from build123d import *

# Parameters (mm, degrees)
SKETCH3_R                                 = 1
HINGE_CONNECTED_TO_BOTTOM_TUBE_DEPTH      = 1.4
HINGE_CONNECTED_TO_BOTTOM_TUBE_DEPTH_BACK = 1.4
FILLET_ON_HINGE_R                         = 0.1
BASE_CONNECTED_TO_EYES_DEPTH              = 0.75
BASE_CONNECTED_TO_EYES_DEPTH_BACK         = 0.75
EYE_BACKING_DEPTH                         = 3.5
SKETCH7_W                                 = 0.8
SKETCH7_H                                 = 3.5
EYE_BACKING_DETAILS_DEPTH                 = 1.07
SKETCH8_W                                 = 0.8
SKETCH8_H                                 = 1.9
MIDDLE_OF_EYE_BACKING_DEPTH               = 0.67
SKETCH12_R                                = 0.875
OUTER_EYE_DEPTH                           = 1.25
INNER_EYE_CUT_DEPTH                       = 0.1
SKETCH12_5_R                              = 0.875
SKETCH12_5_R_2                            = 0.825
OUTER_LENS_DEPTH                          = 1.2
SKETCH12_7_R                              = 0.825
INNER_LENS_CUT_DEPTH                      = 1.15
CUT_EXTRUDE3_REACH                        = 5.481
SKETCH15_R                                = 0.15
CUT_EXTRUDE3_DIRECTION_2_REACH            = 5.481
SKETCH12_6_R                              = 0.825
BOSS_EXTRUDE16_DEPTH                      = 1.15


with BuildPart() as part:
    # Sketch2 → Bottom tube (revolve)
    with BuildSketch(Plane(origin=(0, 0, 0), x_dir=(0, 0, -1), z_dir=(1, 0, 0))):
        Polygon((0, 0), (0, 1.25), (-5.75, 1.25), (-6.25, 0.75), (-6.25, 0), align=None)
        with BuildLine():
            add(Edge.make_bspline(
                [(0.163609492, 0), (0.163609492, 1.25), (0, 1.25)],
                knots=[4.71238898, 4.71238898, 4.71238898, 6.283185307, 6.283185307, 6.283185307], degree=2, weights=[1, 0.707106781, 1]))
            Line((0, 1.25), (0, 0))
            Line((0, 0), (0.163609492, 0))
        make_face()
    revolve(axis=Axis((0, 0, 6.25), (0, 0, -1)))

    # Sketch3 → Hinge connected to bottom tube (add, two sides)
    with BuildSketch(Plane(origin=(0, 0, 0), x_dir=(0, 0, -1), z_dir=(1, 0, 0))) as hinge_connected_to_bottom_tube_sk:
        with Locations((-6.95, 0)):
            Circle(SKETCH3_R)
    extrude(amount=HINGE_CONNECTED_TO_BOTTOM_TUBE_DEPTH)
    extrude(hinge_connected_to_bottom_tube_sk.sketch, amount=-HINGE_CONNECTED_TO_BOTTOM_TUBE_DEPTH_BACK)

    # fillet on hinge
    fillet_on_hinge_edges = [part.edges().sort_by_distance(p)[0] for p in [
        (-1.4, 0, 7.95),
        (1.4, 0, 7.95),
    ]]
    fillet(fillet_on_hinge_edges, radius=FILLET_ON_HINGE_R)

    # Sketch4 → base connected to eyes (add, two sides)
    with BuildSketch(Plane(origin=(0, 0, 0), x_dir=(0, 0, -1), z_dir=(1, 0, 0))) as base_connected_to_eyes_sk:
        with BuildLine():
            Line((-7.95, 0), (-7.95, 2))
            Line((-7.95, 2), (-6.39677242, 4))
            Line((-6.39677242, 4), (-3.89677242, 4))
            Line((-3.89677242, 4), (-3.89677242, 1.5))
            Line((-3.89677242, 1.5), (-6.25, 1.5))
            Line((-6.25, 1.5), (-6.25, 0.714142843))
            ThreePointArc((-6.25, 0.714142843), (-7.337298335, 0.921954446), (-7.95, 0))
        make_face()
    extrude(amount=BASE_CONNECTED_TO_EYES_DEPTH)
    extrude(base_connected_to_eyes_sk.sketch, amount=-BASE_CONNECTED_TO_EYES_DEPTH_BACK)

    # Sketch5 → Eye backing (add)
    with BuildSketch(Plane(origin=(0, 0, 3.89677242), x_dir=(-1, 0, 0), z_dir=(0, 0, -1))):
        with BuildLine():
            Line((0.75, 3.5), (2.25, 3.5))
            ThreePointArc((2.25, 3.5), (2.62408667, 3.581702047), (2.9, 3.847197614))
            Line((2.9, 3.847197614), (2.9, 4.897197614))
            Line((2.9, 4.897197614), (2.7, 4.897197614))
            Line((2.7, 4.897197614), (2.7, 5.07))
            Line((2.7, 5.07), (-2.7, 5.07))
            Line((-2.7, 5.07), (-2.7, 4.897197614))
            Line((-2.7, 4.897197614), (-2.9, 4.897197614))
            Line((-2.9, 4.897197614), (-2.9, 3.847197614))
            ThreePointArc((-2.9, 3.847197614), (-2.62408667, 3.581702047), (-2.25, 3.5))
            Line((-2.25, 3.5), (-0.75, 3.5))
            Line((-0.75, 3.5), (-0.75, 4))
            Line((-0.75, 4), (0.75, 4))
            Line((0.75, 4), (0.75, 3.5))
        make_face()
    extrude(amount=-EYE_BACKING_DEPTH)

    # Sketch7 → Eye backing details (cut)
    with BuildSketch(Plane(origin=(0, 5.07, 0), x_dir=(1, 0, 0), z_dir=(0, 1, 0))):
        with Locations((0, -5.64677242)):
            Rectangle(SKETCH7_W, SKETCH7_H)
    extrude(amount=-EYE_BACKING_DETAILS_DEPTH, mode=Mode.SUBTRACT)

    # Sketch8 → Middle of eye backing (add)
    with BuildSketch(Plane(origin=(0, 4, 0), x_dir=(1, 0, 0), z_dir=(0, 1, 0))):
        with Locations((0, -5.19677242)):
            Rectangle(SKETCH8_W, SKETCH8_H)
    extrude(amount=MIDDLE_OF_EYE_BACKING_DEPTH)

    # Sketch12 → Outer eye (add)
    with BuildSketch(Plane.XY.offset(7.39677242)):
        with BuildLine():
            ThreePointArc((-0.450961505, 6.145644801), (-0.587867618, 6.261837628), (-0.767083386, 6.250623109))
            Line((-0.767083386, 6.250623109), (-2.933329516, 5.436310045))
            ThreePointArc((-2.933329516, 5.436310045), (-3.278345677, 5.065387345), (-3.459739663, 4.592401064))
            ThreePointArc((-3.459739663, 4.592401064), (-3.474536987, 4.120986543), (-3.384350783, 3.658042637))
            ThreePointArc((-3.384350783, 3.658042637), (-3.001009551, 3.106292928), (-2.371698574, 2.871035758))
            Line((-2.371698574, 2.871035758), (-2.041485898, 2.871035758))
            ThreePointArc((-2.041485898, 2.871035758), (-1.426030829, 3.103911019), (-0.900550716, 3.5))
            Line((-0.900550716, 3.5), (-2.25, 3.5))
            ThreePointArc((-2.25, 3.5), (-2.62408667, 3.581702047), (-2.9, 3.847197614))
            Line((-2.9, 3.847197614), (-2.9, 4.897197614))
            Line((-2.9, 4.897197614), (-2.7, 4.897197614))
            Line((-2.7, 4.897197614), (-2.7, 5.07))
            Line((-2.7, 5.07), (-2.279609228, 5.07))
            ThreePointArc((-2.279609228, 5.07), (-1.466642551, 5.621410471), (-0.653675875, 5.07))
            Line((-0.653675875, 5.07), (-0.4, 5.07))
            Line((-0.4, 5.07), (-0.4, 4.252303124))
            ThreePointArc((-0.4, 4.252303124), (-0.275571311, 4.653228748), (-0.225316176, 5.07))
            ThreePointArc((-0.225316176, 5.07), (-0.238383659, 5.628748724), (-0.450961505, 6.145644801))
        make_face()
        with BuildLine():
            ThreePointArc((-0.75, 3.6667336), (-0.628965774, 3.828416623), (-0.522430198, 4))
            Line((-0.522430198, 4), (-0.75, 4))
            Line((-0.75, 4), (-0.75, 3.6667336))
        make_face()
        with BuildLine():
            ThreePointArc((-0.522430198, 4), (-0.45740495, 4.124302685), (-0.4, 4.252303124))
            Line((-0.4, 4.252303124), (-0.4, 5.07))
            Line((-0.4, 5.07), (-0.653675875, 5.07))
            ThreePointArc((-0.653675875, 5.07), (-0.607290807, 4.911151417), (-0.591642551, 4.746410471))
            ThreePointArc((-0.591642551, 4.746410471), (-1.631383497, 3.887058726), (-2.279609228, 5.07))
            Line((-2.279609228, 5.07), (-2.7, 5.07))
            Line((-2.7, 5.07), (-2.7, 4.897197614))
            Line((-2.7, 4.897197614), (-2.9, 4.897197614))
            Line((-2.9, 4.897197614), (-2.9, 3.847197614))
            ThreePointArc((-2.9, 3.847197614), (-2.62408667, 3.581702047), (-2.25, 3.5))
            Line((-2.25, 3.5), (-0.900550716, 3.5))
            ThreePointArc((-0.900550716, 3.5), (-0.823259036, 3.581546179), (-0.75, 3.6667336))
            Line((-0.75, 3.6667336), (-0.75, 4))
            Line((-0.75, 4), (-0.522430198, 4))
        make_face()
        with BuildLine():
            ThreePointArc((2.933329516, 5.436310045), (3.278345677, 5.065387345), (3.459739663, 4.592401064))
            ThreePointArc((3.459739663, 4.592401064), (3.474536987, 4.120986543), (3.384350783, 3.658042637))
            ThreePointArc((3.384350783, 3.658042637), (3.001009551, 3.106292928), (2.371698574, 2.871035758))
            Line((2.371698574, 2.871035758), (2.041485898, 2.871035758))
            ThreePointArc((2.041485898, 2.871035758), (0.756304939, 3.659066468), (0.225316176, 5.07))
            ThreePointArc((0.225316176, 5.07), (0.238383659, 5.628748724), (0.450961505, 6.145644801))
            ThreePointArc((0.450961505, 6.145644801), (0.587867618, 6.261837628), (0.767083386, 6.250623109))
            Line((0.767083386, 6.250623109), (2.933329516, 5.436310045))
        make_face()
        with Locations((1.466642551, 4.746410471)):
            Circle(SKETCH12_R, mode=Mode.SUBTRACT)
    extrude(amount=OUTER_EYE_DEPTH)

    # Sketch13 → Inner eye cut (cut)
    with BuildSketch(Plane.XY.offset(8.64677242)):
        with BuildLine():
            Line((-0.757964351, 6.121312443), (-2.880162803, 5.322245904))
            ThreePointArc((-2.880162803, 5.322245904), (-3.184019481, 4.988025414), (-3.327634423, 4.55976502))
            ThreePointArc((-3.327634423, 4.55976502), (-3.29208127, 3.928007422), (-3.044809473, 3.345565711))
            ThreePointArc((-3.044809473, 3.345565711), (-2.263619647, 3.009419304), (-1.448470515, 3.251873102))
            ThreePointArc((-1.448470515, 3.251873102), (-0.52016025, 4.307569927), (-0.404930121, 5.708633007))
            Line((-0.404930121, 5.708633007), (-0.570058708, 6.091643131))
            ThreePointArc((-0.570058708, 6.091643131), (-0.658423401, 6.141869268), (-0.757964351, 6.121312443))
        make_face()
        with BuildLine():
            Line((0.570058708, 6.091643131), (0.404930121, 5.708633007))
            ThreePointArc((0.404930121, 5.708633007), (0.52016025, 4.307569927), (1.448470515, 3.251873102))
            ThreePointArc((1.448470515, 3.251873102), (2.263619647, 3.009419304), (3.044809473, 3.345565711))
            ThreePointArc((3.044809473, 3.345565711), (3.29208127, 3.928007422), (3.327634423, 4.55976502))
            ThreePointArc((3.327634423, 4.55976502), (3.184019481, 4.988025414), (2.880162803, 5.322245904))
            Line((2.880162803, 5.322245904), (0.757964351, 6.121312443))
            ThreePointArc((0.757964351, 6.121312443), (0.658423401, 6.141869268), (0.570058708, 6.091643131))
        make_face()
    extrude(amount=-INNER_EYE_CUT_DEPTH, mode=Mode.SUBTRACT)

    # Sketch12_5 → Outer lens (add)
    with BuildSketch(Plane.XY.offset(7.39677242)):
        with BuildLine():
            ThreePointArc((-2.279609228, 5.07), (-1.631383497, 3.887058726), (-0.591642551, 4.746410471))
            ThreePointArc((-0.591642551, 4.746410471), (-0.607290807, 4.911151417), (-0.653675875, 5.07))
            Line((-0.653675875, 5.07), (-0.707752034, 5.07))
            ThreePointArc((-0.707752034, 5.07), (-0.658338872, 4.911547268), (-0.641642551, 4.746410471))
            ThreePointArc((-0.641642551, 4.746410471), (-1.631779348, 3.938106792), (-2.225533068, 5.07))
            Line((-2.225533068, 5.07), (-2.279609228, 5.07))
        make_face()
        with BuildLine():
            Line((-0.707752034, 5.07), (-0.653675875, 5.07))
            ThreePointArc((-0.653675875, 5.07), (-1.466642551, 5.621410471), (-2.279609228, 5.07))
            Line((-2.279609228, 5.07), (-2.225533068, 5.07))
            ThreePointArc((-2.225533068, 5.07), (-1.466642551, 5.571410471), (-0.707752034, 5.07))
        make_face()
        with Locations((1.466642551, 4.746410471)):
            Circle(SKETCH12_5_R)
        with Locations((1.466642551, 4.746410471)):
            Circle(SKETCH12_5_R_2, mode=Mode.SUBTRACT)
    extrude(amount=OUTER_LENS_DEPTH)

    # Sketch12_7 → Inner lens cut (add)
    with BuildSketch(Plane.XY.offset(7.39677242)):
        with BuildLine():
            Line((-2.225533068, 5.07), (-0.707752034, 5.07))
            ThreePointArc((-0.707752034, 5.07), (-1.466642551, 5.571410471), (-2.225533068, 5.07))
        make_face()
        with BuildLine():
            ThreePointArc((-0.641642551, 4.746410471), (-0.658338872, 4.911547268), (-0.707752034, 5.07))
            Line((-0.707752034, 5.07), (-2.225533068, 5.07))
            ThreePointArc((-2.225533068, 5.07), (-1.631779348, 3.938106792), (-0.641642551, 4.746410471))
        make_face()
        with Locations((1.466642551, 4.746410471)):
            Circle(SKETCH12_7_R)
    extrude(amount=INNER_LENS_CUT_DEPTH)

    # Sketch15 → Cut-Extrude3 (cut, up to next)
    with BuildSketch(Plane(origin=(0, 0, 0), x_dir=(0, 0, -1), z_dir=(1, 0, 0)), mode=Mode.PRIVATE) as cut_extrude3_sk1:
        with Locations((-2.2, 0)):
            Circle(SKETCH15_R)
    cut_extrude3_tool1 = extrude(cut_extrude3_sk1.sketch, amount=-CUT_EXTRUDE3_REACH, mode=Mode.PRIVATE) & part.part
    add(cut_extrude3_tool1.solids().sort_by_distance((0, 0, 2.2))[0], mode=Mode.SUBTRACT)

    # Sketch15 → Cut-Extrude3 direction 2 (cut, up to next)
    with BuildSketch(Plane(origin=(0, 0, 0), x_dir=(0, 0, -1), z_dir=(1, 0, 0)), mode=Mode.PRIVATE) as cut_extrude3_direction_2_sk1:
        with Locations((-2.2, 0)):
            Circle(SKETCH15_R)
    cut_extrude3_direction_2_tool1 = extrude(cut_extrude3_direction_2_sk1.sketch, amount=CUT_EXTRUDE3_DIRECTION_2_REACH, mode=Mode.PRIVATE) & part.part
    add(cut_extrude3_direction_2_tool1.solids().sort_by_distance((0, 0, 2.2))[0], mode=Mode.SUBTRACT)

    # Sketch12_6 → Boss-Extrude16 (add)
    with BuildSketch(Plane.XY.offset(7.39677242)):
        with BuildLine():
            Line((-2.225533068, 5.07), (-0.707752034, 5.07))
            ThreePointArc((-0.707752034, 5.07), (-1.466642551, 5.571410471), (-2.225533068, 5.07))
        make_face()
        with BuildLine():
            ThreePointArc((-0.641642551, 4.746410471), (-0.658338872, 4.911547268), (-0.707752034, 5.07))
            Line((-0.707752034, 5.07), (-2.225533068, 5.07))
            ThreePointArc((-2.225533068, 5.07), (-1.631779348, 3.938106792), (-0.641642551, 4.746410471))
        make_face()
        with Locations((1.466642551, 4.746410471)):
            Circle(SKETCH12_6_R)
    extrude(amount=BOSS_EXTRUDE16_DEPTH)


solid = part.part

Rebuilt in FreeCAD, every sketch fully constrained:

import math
import FreeCAD as App
import Part
import Sketcher
from FreeCAD import Vector


def edges_at(feature, points):
    """Names of the edges that pass closest to the given points."""
    edges = feature.Shape.Edges
    near = lambda p: min(range(len(edges)), key=lambda i: edges[i].distToShape(Part.Vertex(*p))[0])
    return sorted({f"Edge{near(p) + 1}" for p in points})


def add_polygon(sketch, points):
    """Adds a closed chain of lines whose ends are joined by coincident constraints."""
    first, n = sketch.GeometryCount, len(points)
    for a, b in zip(points, points[1:] + points[:1]):
        sketch.addGeometry(Part.LineSegment(App.Vector(*a, 0), App.Vector(*b, 0)), False)
    for i in range(n):
        sketch.addConstraint(Sketcher.Constraint("Coincident", first + i, 2, first + (i + 1) % n, 1))

doc = App.newDocument("Part")
body = doc.addObject("PartDesign::Body", "Body")

# Sketch on YZ plane
sketch1 = doc.addObject("Sketcher::SketchObject", "Sketch")
body.addObject(sketch1)
sketch1.AttachmentSupport = (doc.YZ_Plane, [""])
sketch1.MapMode = "FlatFace"
sketch1.addGeometry([
    Part.LineSegment(Vector(1.25, 0, 0), Vector(1.25, 5.75, 0)),  # 0
    Part.LineSegment(Vector(1.25, 5.75, 0), Vector(0.75, 6.25, 0)),  # 1
    Part.LineSegment(Vector(0.75, 6.25, 0), Vector(0, 6.25, 0)),  # 2
    Part.LineSegment(Vector(0, 6.25, 0), Vector(0, -0.163609, 0)),  # 3
    Part.BSplineCurve([Vector(0, -0.163609, 0), Vector(1.25, -0.163609, 0), Vector(1.25, 0, 0)], [3, 3], [4.71238898, 6.283185307], False, 2, [1, 0.707106781, 1], False),  # 4
], False)
sketch1.addConstraint([
    Sketcher.Constraint("Block", 4),
    Sketcher.Constraint("Coincident", 0, 2, 1, 1),
    Sketcher.Constraint("Coincident", 1, 2, 2, 1),
    Sketcher.Constraint("Coincident", 2, 2, 3, 1),
    Sketcher.Constraint("Coincident", 3, 2, 4, 1),
    Sketcher.Constraint("Coincident", 4, 2, 0, 1),
    Sketcher.Constraint("Vertical", 0),
    Sketcher.Constraint("Horizontal", 2),
    Sketcher.Constraint("Vertical", 3),
    Sketcher.Constraint("DistanceX", 2, 2, 2, 1, 0.75),
    Sketcher.Constraint("DistanceY", 0, 1, 0, 2, 5.75),
    Sketcher.Constraint("DistanceY", 0, 2, 1, 2, 0.5),
])
revolution = doc.addObject("PartDesign::Revolution", "Revolution")
body.addObject(revolution)
revolution.Profile = sketch1
revolution.ReferenceAxis = (sketch1, ["V_Axis"])
revolution.Angle = 360

# Sketch on YZ plane
sketch2 = doc.addObject("Sketcher::SketchObject", "Sketch001")
body.addObject(sketch2)
sketch2.AttachmentSupport = (doc.YZ_Plane, [""])
sketch2.MapMode = "FlatFace"
sketch2.addGeometry(Part.Circle(Vector(0, 6.95, 0), Vector(0, 0, 1), 1), False)
sketch2.addConstraint([
    Sketcher.Constraint("PointOnObject", 0, 3, -2),
    Sketcher.Constraint("Diameter", 0, 2.0),
    Sketcher.Constraint("DistanceY", -1, 1, 0, 3, 6.95),
])
pad1 = doc.addObject("PartDesign::Pad", "Pad")
body.addObject(pad1)
pad1.Profile = sketch2
pad1.Type = "TwoLengths"
pad1.Length = 1.4
pad1.Length2 = 1.4
doc.recompute()

fillet = doc.addObject("PartDesign::Fillet", "Fillet")
body.addObject(fillet)
fillet.Base = (pad1, edges_at(pad1, [(-1.4, 0, 7.95), (1.4, 0, 7.95)]))
fillet.Radius = 0.1

# Sketch on YZ plane
sketch3 = doc.addObject("Sketcher::SketchObject", "Sketch002")
body.addObject(sketch3)
sketch3.AttachmentSupport = (doc.YZ_Plane, [""])
sketch3.MapMode = "FlatFace"
sketch3.addGeometry([
    Part.LineSegment(Vector(2, 7.95, 0), Vector(0, 7.95, 0)),  # 0
    Part.ArcOfCircle(Part.Circle(Vector(0, 6.95, 0), Vector(0, 0, 1), 1), math.radians(-44.427004), math.radians(90)),  # 1
    Part.LineSegment(Vector(0.714143, 6.25, 0), Vector(1.5, 6.25, 0)),  # 2
    Part.LineSegment(Vector(1.5, 6.25, 0), Vector(1.5, 3.896772, 0)),  # 3
    Part.LineSegment(Vector(1.5, 3.896772, 0), Vector(4, 3.896772, 0)),  # 4
    Part.LineSegment(Vector(4, 3.896772, 0), Vector(4, 6.396772, 0)),  # 5
    Part.LineSegment(Vector(4, 6.396772, 0), Vector(2, 7.95, 0)),  # 6
], False)
sketch3.addConstraint([
    Sketcher.Constraint("Tangent", 0, 2, 1, 2),
    Sketcher.Constraint("Coincident", 1, 1, 2, 1),
    Sketcher.Constraint("Coincident", 2, 2, 3, 1),
    Sketcher.Constraint("Coincident", 3, 2, 4, 1),
    Sketcher.Constraint("Coincident", 4, 2, 5, 1),
    Sketcher.Constraint("Coincident", 5, 2, 6, 1),
    Sketcher.Constraint("Coincident", 6, 2, 0, 1),
    Sketcher.Constraint("Horizontal", 0),
    Sketcher.Constraint("Horizontal", 2),
    Sketcher.Constraint("Vertical", 3),
    Sketcher.Constraint("Horizontal", 4),
    Sketcher.Constraint("Vertical", 5),
    Sketcher.Constraint("PointOnObject", 1, 3, -2),
    Sketcher.Constraint("Equal", 4, 5),
    Sketcher.Constraint("Radius", 1, 1.0),
    Sketcher.Constraint("DistanceX", 0, 2, 0, 1, 2.0),
    Sketcher.Constraint("DistanceX", 4, 1, 4, 2, 2.5),
    Sketcher.Constraint("DistanceX", -1, 1, 4, 2, 4.0),
    Sketcher.Constraint("DistanceY", 1, 1, 1, 3, 0.7),
    Sketcher.Constraint("DistanceY", -1, 1, 1, 3, 6.95),
    Sketcher.Constraint("DistanceY", 3, 2, 3, 1, 2.353228),
])
pad2 = doc.addObject("PartDesign::Pad", "Pad001")
body.addObject(pad2)
pad2.Profile = sketch3
pad2.Type = "TwoLengths"
pad2.Length = 0.75
pad2.Length2 = 0.75

# Sketch on XY plane
sketch4 = doc.addObject("Sketcher::SketchObject", "Sketch003")
body.addObject(sketch4)
sketch4.AttachmentSupport = (doc.XY_Plane, [""])
sketch4.MapMode = "FlatFace"
sketch4.AttachmentOffset = App.Placement(Vector(0, 0, 3.896772), App.Rotation())
sketch4.addGeometry([
    Part.LineSegment(Vector(-0.75, 3.5, 0), Vector(-2.25, 3.5, 0)),  # 0
    Part.ArcOfCircle(Part.Circle(Vector(-2.292571, 4.202344, 0), Vector(0, 0, 1), 0.703633), math.radians(-149.686395), math.radians(-86.531428)),  # 1
    Part.LineSegment(Vector(-2.9, 3.847198, 0), Vector(-2.9, 4.897198, 0)),  # 2
    Part.LineSegment(Vector(-2.9, 4.897198, 0), Vector(-2.7, 4.897198, 0)),  # 3
    Part.LineSegment(Vector(-2.7, 4.897198, 0), Vector(-2.7, 5.07, 0)),  # 4
    Part.LineSegment(Vector(-2.7, 5.07, 0), Vector(2.7, 5.07, 0)),  # 5
    Part.LineSegment(Vector(2.7, 5.07, 0), Vector(2.7, 4.897198, 0)),  # 6
    Part.LineSegment(Vector(2.7, 4.897198, 0), Vector(2.9, 4.897198, 0)),  # 7
    Part.LineSegment(Vector(2.9, 4.897198, 0), Vector(2.9, 3.847198, 0)),  # 8
    Part.ArcOfCircle(Part.Circle(Vector(2.292571, 4.202344, 0), Vector(0, 0, 1), 0.703633), math.radians(-93.468572), math.radians(-30.313605)),  # 9
    Part.LineSegment(Vector(2.25, 3.5, 0), Vector(0.75, 3.5, 0)),  # 10
    Part.LineSegment(Vector(0.75, 3.5, 0), Vector(0.75, 4, 0)),  # 11
    Part.LineSegment(Vector(0.75, 4, 0), Vector(-0.75, 4, 0)),  # 12
    Part.LineSegment(Vector(-0.75, 4, 0), Vector(-0.75, 3.5, 0)),  # 13
], False)
sketch4.addConstraint([
    Sketcher.Constraint("Coincident", 0, 2, 1, 2),
    Sketcher.Constraint("Coincident", 1, 1, 2, 1),
    Sketcher.Constraint("Coincident", 2, 2, 3, 1),
    Sketcher.Constraint("Coincident", 3, 2, 4, 1),
    Sketcher.Constraint("Coincident", 4, 2, 5, 1),
    Sketcher.Constraint("Coincident", 5, 2, 6, 1),
    Sketcher.Constraint("Coincident", 6, 2, 7, 1),
    Sketcher.Constraint("Coincident", 7, 2, 8, 1),
    Sketcher.Constraint("Coincident", 8, 2, 9, 2),
    Sketcher.Constraint("Coincident", 9, 1, 10, 1),
    Sketcher.Constraint("Coincident", 10, 2, 11, 1),
    Sketcher.Constraint("Coincident", 11, 2, 12, 1),
    Sketcher.Constraint("Coincident", 12, 2, 13, 1),
    Sketcher.Constraint("Coincident", 13, 2, 0, 1),
    Sketcher.Constraint("Horizontal", 0),
    Sketcher.Constraint("Vertical", 2),
    Sketcher.Constraint("Horizontal", 3),
    Sketcher.Constraint("Vertical", 4),
    Sketcher.Constraint("Horizontal", 5),
    Sketcher.Constraint("Vertical", 6),
    Sketcher.Constraint("Horizontal", 7),
    Sketcher.Constraint("Vertical", 8),
    Sketcher.Constraint("Horizontal", 10),
    Sketcher.Constraint("Vertical", 11),
    Sketcher.Constraint("Horizontal", 12),
    Sketcher.Constraint("Vertical", 13),
    Sketcher.Constraint("Equal", 1, 9),
    Sketcher.Constraint("Symmetric", 1, 3, 9, 3, -2),
    Sketcher.Constraint("Symmetric", 3, 2, 6, 2, -2),
    Sketcher.Constraint("Symmetric", 10, 2, 13, 2, -2),
    Sketcher.Constraint("Horizontal", 1, 1, 8, 2),
    Sketcher.Constraint("Equal", 10, 12),
    Sketcher.Constraint("DistanceX", 0, 2, 0, 1, 1.5),
    Sketcher.Constraint("DistanceX", 3, 1, 3, 2, 0.2),
    Sketcher.Constraint("DistanceX", 5, 1, 5, 2, 5.4),
    Sketcher.Constraint("DistanceY", 11, 1, 11, 2, 0.5),
    Sketcher.Constraint("DistanceY", -1, 1, 11, 2, 4.0),
    Sketcher.Constraint("DistanceY", 2, 1, 2, 2, 1.05),
    Sketcher.Constraint("DistanceY", -1, 1, 4, 2, 5.07),
    Sketcher.Constraint("Radius", 1, 0.703633),
    Sketcher.Constraint("DistanceY", 4, 1, 4, 2, 0.172802),
])
pad3 = doc.addObject("PartDesign::Pad", "Pad002")
body.addObject(pad3)
pad3.Profile = sketch4
pad3.Length = 3.5

# Sketch on XZ plane
sketch5 = doc.addObject("Sketcher::SketchObject", "Sketch004")
body.addObject(sketch5)
sketch5.AttachmentSupport = (doc.XZ_Plane, [""])
sketch5.MapMode = "FlatFace"
sketch5.AttachmentOffset = App.Placement(Vector(0, 0, -5.07), App.Rotation())
add_polygon(sketch5, [(-0.4, 3.896772), (-0.4, 7.396772), (0.4, 7.396772), (0.4, 3.896772)])  # lines 0-3
sketch5.addConstraint([
    Sketcher.Constraint("Vertical", 0),
    Sketcher.Constraint("Horizontal", 1),
    Sketcher.Constraint("Vertical", 2),
    Sketcher.Constraint("Horizontal", 3),
    Sketcher.Constraint("DistanceX", 1, 1, 1, 2, 0.8),
    Sketcher.Constraint("DistanceY", 0, 1, 0, 2, 3.5),
    Sketcher.Constraint("DistanceX", 0, 2, -1, 1, 0.4),
    Sketcher.Constraint("DistanceY", -1, 1, 0, 2, 7.396772),
])
pocket1 = doc.addObject("PartDesign::Pocket", "Pocket")
body.addObject(pocket1)
pocket1.Profile = sketch5
pocket1.Length = 1.07
pocket1.Reversed = True

# Sketch on XZ plane
sketch6 = doc.addObject("Sketcher::SketchObject", "Sketch005")
body.addObject(sketch6)
sketch6.AttachmentSupport = (doc.XZ_Plane, [""])
sketch6.MapMode = "FlatFace"
sketch6.AttachmentOffset = App.Placement(Vector(0, 0, -4), App.Rotation())
add_polygon(sketch6, [(-0.4, 4.246772), (-0.4, 6.146772), (0.4, 6.146772), (0.4, 4.246772)])  # lines 0-3
sketch6.addConstraint([
    Sketcher.Constraint("Vertical", 0),
    Sketcher.Constraint("Horizontal", 1),
    Sketcher.Constraint("Vertical", 2),
    Sketcher.Constraint("Horizontal", 3),
    Sketcher.Constraint("DistanceX", 1, 1, 1, 2, 0.8),
    Sketcher.Constraint("DistanceY", 0, 1, 0, 2, 1.9),
    Sketcher.Constraint("DistanceX", 0, 2, -1, 1, 0.4),
    Sketcher.Constraint("DistanceY", -1, 1, 0, 2, 6.146772),
])
pad4 = doc.addObject("PartDesign::Pad", "Pad003")
body.addObject(pad4)
pad4.Profile = sketch6
pad4.Length = 0.67
pad4.Reversed = True

# Sketch on XY plane
sketch7 = doc.addObject("Sketcher::SketchObject", "Sketch006")
body.addObject(sketch7)
sketch7.AttachmentSupport = (doc.XY_Plane, [""])
sketch7.MapMode = "FlatFace"
sketch7.AttachmentOffset = App.Placement(Vector(0, 0, 7.396772), App.Rotation())
sketch7.addGeometry([
    Part.ArcOfCircle(Part.Circle(Vector(-0.663563, 6.033896, 0), Vector(0, 0, 1), 0.240181), math.radians(27.727556), math.radians(115.531674)),  # 0
    Part.LineSegment(Vector(-0.767083, 6.250623, 0), Vector(-2.93333, 5.43631, 0)),  # 1
    Part.ArcOfCircle(Part.Circle(Vector(-2.149289, 4.361109, 0), Vector(0, 0, 1), 1.330705), math.radians(126.099658), math.radians(169.990495)),  # 2
    Part.ArcOfCircle(Part.Circle(Vector(-1.369332, 4.290845, 0), Vector(0, 0, 1), 2.112046), math.radians(171.791316), math.radians(197.434539)),  # 3
    Part.ArcOfCircle(Part.Circle(Vector(-2.309989, 3.995439, 0), Vector(0, 0, 1), 1.126095), math.radians(-162.565461), math.radians(-93.141378)),  # 4
    Part.LineSegment(Vector(-2.371699, 2.871036, 0), Vector(-2.041486, 2.871036, 0)),  # 5
    Part.ArcOfCircle(Part.Circle(Vector(-2.547708, 5.138623, 0), Vector(0, 0, 1), 2.323406), math.radians(-77.415487), math.radians(-44.851184)),  # 6
    Part.ArcOfCircle(Part.Circle(Vector(-2.547708, 5.138623, 0), Vector(0, 0, 1), 2.323406), math.radians(-44.851184), math.radians(-39.309207)),  # 7
    Part.ArcOfCircle(Part.Circle(Vector(-2.547708, 5.138623, 0), Vector(0, 0, 1), 2.323406), math.radians(-39.309208), math.radians(-29.344951)),  # 8
    Part.ArcOfCircle(Part.Circle(Vector(-2.547708, 5.138623, 0), Vector(0, 0, 1), 2.323406), math.radians(-29.344951), math.radians(-22.425049)),  # 9
    Part.ArcOfCircle(Part.Circle(Vector(-2.547708, 5.138623, 0), Vector(0, 0, 1), 2.323406), math.radians(-22.425049), math.radians(-1.692513)),  # 10
    Part.ArcOfCircle(Part.Circle(Vector(-1.738075, 5.314148, 0), Vector(0, 0, 1), 1.532334), math.radians(-9.168061), math.radians(32.863122)),  # 11
    Part.ArcOfCircle(Part.Circle(Vector(-1.466643, 4.74641, 0), Vector(0, 0, 1), 0.875), math.radians(21.704307), math.radians(158.295693)),  # 12
    Part.ArcOfCircle(Part.Circle(Vector(-1.466643, 4.74641, 0), Vector(0, 0, 1), 0.875), math.radians(0), math.radians(21.704307)),  # 13
    Part.ArcOfCircle(Part.Circle(Vector(-1.466643, 4.74641, 0), Vector(0, 0, 1), 0.875), math.radians(158.295693), math.radians(360)),  # 14
    Part.ArcOfCircle(Part.Circle(Vector(2.149289, 4.361109, 0), Vector(0, 0, 1), 1.330705), math.radians(10.009505), math.radians(53.900342)),  # 15
    Part.LineSegment(Vector(2.93333, 5.43631, 0), Vector(0.767083, 6.250623, 0)),  # 16
    Part.ArcOfCircle(Part.Circle(Vector(0.663563, 6.033896, 0), Vector(0, 0, 1), 0.240181), math.radians(64.468326), math.radians(152.272444)),  # 17
    Part.ArcOfCircle(Part.Circle(Vector(1.738075, 5.314148, 0), Vector(0, 0, 1), 1.532334), math.radians(147.136878), math.radians(189.168061)),  # 18
    Part.ArcOfCircle(Part.Circle(Vector(2.547708, 5.138623, 0), Vector(0, 0, 1), 2.323406), math.radians(-178.307487), math.radians(-102.584513)),  # 19
    Part.LineSegment(Vector(2.041486, 2.871036, 0), Vector(2.371699, 2.871036, 0)),  # 20
    Part.ArcOfCircle(Part.Circle(Vector(2.309989, 3.995439, 0), Vector(0, 0, 1), 1.126095), math.radians(-86.858622), math.radians(-17.434539)),  # 21
    Part.ArcOfCircle(Part.Circle(Vector(1.369332, 4.290845, 0), Vector(0, 0, 1), 2.112046), math.radians(-17.434539), math.radians(8.208684)),  # 22
    Part.Circle(Vector(1.466643, 4.74641, 0), Vector(0, 0, 1), 0.875),  # 23
], False)
sketch7.addConstraint([
    Sketcher.Constraint("Coincident", 0, 2, 1, 1),
    Sketcher.Constraint("Coincident", 1, 2, 2, 1),
    Sketcher.Constraint("Coincident", 2, 2, 3, 1),
    Sketcher.Constraint("Tangent", 3, 2, 4, 1),
    Sketcher.Constraint("Coincident", 4, 2, 5, 1),
    Sketcher.Constraint("Coincident", 5, 2, 6, 1),
    Sketcher.Constraint("Tangent", 6, 2, 7, 1),
    Sketcher.Constraint("Tangent", 7, 2, 8, 1),
    Sketcher.Constraint("Tangent", 8, 2, 9, 1),
    Sketcher.Constraint("Tangent", 9, 2, 10, 1),
    Sketcher.Constraint("Coincident", 10, 2, 11, 1),
    Sketcher.Constraint("Coincident", 11, 2, 0, 1),
    Sketcher.Constraint("Tangent", 12, 1, 13, 2),
    Sketcher.Constraint("Tangent", 13, 1, 14, 2),
    Sketcher.Constraint("Tangent", 14, 1, 12, 2),
    Sketcher.Constraint("Coincident", 15, 2, 16, 1),
    Sketcher.Constraint("Coincident", 16, 2, 17, 1),
    Sketcher.Constraint("Coincident", 17, 2, 18, 1),
    Sketcher.Constraint("Coincident", 18, 2, 19, 1),
    Sketcher.Constraint("Coincident", 19, 2, 20, 1),
    Sketcher.Constraint("Coincident", 20, 2, 21, 1),
    Sketcher.Constraint("Tangent", 21, 2, 22, 1),
    Sketcher.Constraint("Coincident", 22, 2, 15, 1),
    Sketcher.Constraint("Horizontal", 5),
    Sketcher.Constraint("Horizontal", 20),
    Sketcher.Constraint("Coincident", 8, 3, 6, 3),
    Sketcher.Constraint("Coincident", 10, 3, 6, 3),
    Sketcher.Constraint("Equal", 2, 15),
    Sketcher.Constraint("Equal", 0, 17),
    Sketcher.Constraint("Equal", 11, 18),
    Sketcher.Constraint("Equal", 10, 19),
    Sketcher.Constraint("Equal", 4, 21),
    Sketcher.Constraint("Equal", 3, 22),
    Sketcher.Constraint("Equal", 14, 23),
    Sketcher.Constraint("Symmetric", 2, 3, 15, 3, -2),
    Sketcher.Constraint("Symmetric", 0, 3, 17, 3, -2),
    Sketcher.Constraint("Symmetric", 11, 3, 18, 3, -2),
    Sketcher.Constraint("Symmetric", 6, 3, 19, 3, -2),
    Sketcher.Constraint("Symmetric", 4, 3, 21, 3, -2),
    Sketcher.Constraint("Symmetric", 12, 3, 23, 3, -2),
    Sketcher.Constraint("Horizontal", 3, 3, 22, 3),
    Sketcher.Constraint("Horizontal", 10, 2, 12, 1),
    Sketcher.Constraint("Horizontal", 23, 3, 13, 1),
    Sketcher.Constraint("Horizontal", 12, 1, 14, 1),
    Sketcher.Constraint("Horizontal", 1, 2, 15, 2),
    Sketcher.Constraint("Horizontal", 0, 2, 16, 2),
    Sketcher.Constraint("Horizontal", 5, 2, 19, 2),
    Sketcher.Constraint("Diameter", 23, 1.75),
    Sketcher.Constraint("DistanceY", -1, 1, 8, 2, 4.0),
    Sketcher.Constraint("DistanceY", -1, 1, 6, 2, 3.5),
    Sketcher.Constraint("DistanceX", 9, 2, -1, 1, 0.4),
    Sketcher.Constraint("DistanceX", 7, 2, -1, 1, 0.75),
    Sketcher.Constraint("DistanceY", -1, 1, 10, 2, 5.07),
    Sketcher.Constraint("Radius", 0, 0.240181),
    Sketcher.Constraint("Radius", 2, 1.330705),
    Sketcher.Constraint("Radius", 3, 2.112046),
    Sketcher.Constraint("Radius", 4, 1.126095),
    Sketcher.Constraint("Radius", 6, 2.323406),
    Sketcher.Constraint("Radius", 11, 1.532334),
    Sketcher.Constraint("DistanceY", -1, 1, 2, 2, 4.592401),
    Sketcher.Constraint("DistanceX", 4, 2, -1, 1, 2.371699),
    Sketcher.Constraint("DistanceX", 4, 3, 2, 3, 0.160699),
    Sketcher.Constraint("DistanceY", 2, 3, 12, 3, 0.385301),
    Sketcher.Constraint("DistanceX", 0, 3, 11, 2, 0.212601),
    Sketcher.Constraint("DistanceX", 7, 3, 14, 1, 0.268099),
    Sketcher.Constraint("DistanceY", 15, 3, 15, 2, 1.075201),
    Sketcher.Constraint("DistanceX", 5, 1, 5, 2, 0.330213),
    Sketcher.Constraint("DistanceX", 2, 3, -1, 1, 2.149289),
    Sketcher.Constraint("DistanceY", -1, 1, 2, 3, 4.361109),
    Sketcher.Constraint("DistanceY", -1, 1, 4, 3, 3.995439),
    Sketcher.Constraint("DistanceX", 6, 3, -1, 1, 2.547708),
    Sketcher.Constraint("DistanceY", -1, 1, 11, 3, 5.314148),
    Sketcher.Constraint("DistanceX", 11, 2, -1, 1, 0.450962),
    Sketcher.Constraint("DistanceX", 0, 2, 0, 3, 0.103521),
])
pad5 = doc.addObject("PartDesign::Pad", "Pad004")
body.addObject(pad5)
pad5.Profile = sketch7
pad5.Length = 1.25

# Sketch on XY plane
sketch8 = doc.addObject("Sketcher::SketchObject", "Sketch007")
body.addObject(sketch8)
sketch8.AttachmentSupport = (doc.XY_Plane, [""])
sketch8.MapMode = "FlatFace"
sketch8.AttachmentOffset = App.Placement(Vector(0, 0, 8.646772), App.Rotation())
sketch8.addGeometry([
    Part.LineSegment(Vector(-0.757964, 6.121312, 0), Vector(-2.880163, 5.322246, 0)),  # 0
    Part.ArcOfCircle(Part.Circle(Vector(-2.236928, 4.432213, 0), Vector(0, 0, 1), 1.09814), math.radians(125.855977), math.radians(173.329854)),  # 1
    Part.ArcOfCircle(Part.Circle(Vector(-1.498304, 4.345834, 0), Vector(0, 0, 1), 1.841797), math.radians(173.329854), math.radians(212.89449)),  # 2
    Part.ArcOfCircle(Part.Circle(Vector(-2.190506, 4.255131, 0), Vector(0, 0, 1), 1.247855), math.radians(-133.205511), math.radians(-53.51241)),  # 3
    Part.ArcOfCircle(Part.Circle(Vector(-2.579234, 5.182188, 0), Vector(0, 0, 1), 2.237128), math.radians(-59.638556), math.radians(13.610589)),  # 4
    Part.LineSegment(Vector(-0.40493, 5.708633, 0), Vector(-0.570059, 6.091643, 0)),  # 5
    Part.ArcOfCircle(Part.Circle(Vector(-0.680908, 5.999467, 0), Vector(0, 0, 1), 0.144167), math.radians(39.745174), math.radians(122.309573)),  # 6
    Part.LineSegment(Vector(0.570059, 6.091643, 0), Vector(0.40493, 5.708633, 0)),  # 7
    Part.ArcOfCircle(Part.Circle(Vector(2.579234, 5.182188, 0), Vector(0, 0, 1), 2.237128), math.radians(166.389411), math.radians(239.638556)),  # 8
    Part.ArcOfCircle(Part.Circle(Vector(2.190506, 4.255131, 0), Vector(0, 0, 1), 1.247855), math.radians(-126.48759), math.radians(-46.794489)),  # 9
    Part.ArcOfCircle(Part.Circle(Vector(1.498304, 4.345834, 0), Vector(0, 0, 1), 1.841797), math.radians(-32.89449), math.radians(6.670146)),  # 10
    Part.ArcOfCircle(Part.Circle(Vector(2.236928, 4.432213, 0), Vector(0, 0, 1), 1.09814), math.radians(6.670146), math.radians(54.144023)),  # 11
    Part.LineSegment(Vector(2.880163, 5.322246, 0), Vector(0.757964, 6.121312, 0)),  # 12
    Part.ArcOfCircle(Part.Circle(Vector(0.680908, 5.999467, 0), Vector(0, 0, 1), 0.144167), math.radians(57.690427), math.radians(140.254826)),  # 13
], False)
sketch8.addConstraint([
    Sketcher.Constraint("Coincident", 0, 2, 1, 1),
    Sketcher.Constraint("Tangent", 1, 2, 2, 1),
    Sketcher.Constraint("Coincident", 2, 2, 3, 1),
    Sketcher.Constraint("Coincident", 3, 2, 4, 1),
    Sketcher.Constraint("Coincident", 4, 2, 5, 1),
    Sketcher.Constraint("Coincident", 5, 2, 6, 1),
    Sketcher.Constraint("Coincident", 6, 2, 0, 1),
    Sketcher.Constraint("Coincident", 7, 2, 8, 1),
    Sketcher.Constraint("Coincident", 8, 2, 9, 1),
    Sketcher.Constraint("Coincident", 9, 2, 10, 1),
    Sketcher.Constraint("Tangent", 10, 2, 11, 1),
    Sketcher.Constraint("Coincident", 11, 2, 12, 1),
    Sketcher.Constraint("Coincident", 12, 2, 13, 1),
    Sketcher.Constraint("Coincident", 13, 2, 7, 1),
    Sketcher.Constraint("Equal", 4, 8),
    Sketcher.Constraint("Equal", 3, 9),
    Sketcher.Constraint("Equal", 2, 10),
    Sketcher.Constraint("Equal", 1, 11),
    Sketcher.Constraint("Equal", 6, 13),
    Sketcher.Constraint("Symmetric", 4, 3, 8, 3, -2),
    Sketcher.Constraint("Symmetric", 3, 3, 9, 3, -2),
    Sketcher.Constraint("Symmetric", 2, 3, 10, 3, -2),
    Sketcher.Constraint("Symmetric", 6, 3, 13, 3, -2),
    Sketcher.Constraint("Symmetric", 0, 2, 11, 2, -2),
    Sketcher.Constraint("Horizontal", 4, 2, 7, 2),
    Sketcher.Constraint("Horizontal", 6, 2, 12, 2),
    Sketcher.Constraint("Horizontal", 5, 2, 13, 2),
    Sketcher.Constraint("Radius", 1, 1.09814),
    Sketcher.Constraint("Radius", 4, 2.237128),
    Sketcher.Constraint("Radius", 2, 1.841797),
    Sketcher.Constraint("Radius", 3, 1.247855),
    Sketcher.Constraint("Radius", 6, 0.144167),
    Sketcher.Constraint("DistanceX", 3, 3, 6, 3, 1.509598),
    Sketcher.Constraint("DistanceX", 1, 2, 4, 3, 0.7484),
    Sketcher.Constraint("DistanceY", 2, 2, 1, 2, 1.214199),
    Sketcher.Constraint("DistanceY", 2, 3, 4, 2, 1.362799),
    Sketcher.Constraint("Distance", 0, 2.267649),
    Sketcher.Constraint("Distance", 5, 0.41709),
    Sketcher.Constraint("DistanceY", -1, 1, 3, 3, 4.255131),
    Sketcher.Constraint("DistanceY", -1, 1, 4, 3, 5.182188),
    Sketcher.Constraint("DistanceX", 6, 3, -1, 1, 0.680908),
    Sketcher.Constraint("DistanceX", 2, 2, -1, 1, 3.044809),
    Sketcher.Constraint("DistanceX", 3, 2, -1, 1, 1.448471),
    Sketcher.Constraint("DistanceX", 5, 2, -1, 1, 0.570059),
    Sketcher.Constraint("DistanceX", 0, 2, 4, 3, 0.300929),
])
pocket2 = doc.addObject("PartDesign::Pocket", "Pocket001")
body.addObject(pocket2)
pocket2.Profile = sketch8
pocket2.Length = 0.1

# Sketch on XY plane
sketch9 = doc.addObject("Sketcher::SketchObject", "Sketch008")
body.addObject(sketch9)
sketch9.AttachmentSupport = (doc.XY_Plane, [""])
sketch9.MapMode = "FlatFace"
sketch9.AttachmentOffset = App.Placement(Vector(0, 0, 7.396772), App.Rotation())
sketch9.addGeometry([
    Part.ArcOfCircle(Part.Circle(Vector(-1.466643, 4.74641, 0), Vector(0, 0, 1), 0.875), math.radians(0), math.radians(21.704307)),  # 0
    Part.ArcOfCircle(Part.Circle(Vector(-1.466643, 4.74641, 0), Vector(0, 0, 1), 0.875), math.radians(21.704307), math.radians(158.295693)),  # 1
    Part.ArcOfCircle(Part.Circle(Vector(-1.466643, 4.74641, 0), Vector(0, 0, 1), 0.875), math.radians(158.295693), math.radians(360)),  # 2
    Part.ArcOfCircle(Part.Circle(Vector(-1.466643, 4.74641, 0), Vector(0, 0, 1), 0.825), math.radians(0), math.radians(23.093311)),  # 3
    Part.ArcOfCircle(Part.Circle(Vector(-1.466643, 4.74641, 0), Vector(0, 0, 1), 0.825), math.radians(156.906689), math.radians(360)),  # 4
    Part.ArcOfCircle(Part.Circle(Vector(-1.466643, 4.74641, 0), Vector(0, 0, 1), 0.825), math.radians(23.093311), math.radians(156.906689)),  # 5
    Part.Circle(Vector(1.466643, 4.74641, 0), Vector(0, 0, 1), 0.875),  # 6
    Part.Circle(Vector(1.466643, 4.74641, 0), Vector(0, 0, 1), 0.825),  # 7
], False)
sketch9.addConstraint([
    Sketcher.Constraint("Tangent", 0, 2, 1, 1),
    Sketcher.Constraint("Tangent", 1, 2, 2, 1),
    Sketcher.Constraint("Tangent", 2, 2, 0, 1),
    Sketcher.Constraint("Tangent", 3, 1, 4, 2),
    Sketcher.Constraint("Tangent", 4, 1, 5, 2),
    Sketcher.Constraint("Tangent", 5, 1, 3, 2),
    Sketcher.Constraint("Coincident", 3, 3, 0, 3),
    Sketcher.Constraint("Coincident", 7, 3, 6, 3),
    Sketcher.Constraint("Equal", 2, 6),
    Sketcher.Constraint("Equal", 5, 7),
    Sketcher.Constraint("Symmetric", 0, 3, 6, 3, -2),
    Sketcher.Constraint("Horizontal", 0, 2, 1, 2),
    Sketcher.Constraint("Horizontal", 7, 3, 2, 2),
    Sketcher.Constraint("Horizontal", 2, 2, 3, 1),
    Sketcher.Constraint("Horizontal", 1, 2, 4, 1),
    Sketcher.Constraint("Horizontal", 4, 1, 5, 1),
    Sketcher.Constraint("Diameter", 6, 1.75),
    Sketcher.Constraint("Diameter", 7, 1.65),
    Sketcher.Constraint("DistanceY", -1, 1, 0, 2, 5.07),
    Sketcher.Constraint("DistanceY", -1, 1, 0, 3, 4.74641),
    Sketcher.Constraint("DistanceX", 1, 2, -1, 1, 2.279609),
])
pad6 = doc.addObject("PartDesign::Pad", "Pad005")
body.addObject(pad6)
pad6.Profile = sketch9
pad6.Length = 1.2

# Sketch on XY plane
sketch10 = doc.addObject("Sketcher::SketchObject", "Sketch009")
body.addObject(sketch10)
sketch10.AttachmentSupport = (doc.XY_Plane, [""])
sketch10.MapMode = "FlatFace"
sketch10.AttachmentOffset = App.Placement(Vector(0, 0, 7.396772), App.Rotation())
sketch10.addGeometry([
    Part.ArcOfCircle(Part.Circle(Vector(-1.466643, 4.74641, 0), Vector(0, 0, 1), 0.825), math.radians(23.093311), math.radians(156.906689)),
    Part.ArcOfCircle(Part.Circle(Vector(-1.466643, 4.74641, 0), Vector(0, 0, 1), 0.825), math.radians(156.906689), math.radians(360)),
    Part.ArcOfCircle(Part.Circle(Vector(-1.466643, 4.74641, 0), Vector(0, 0, 1), 0.825), math.radians(0), math.radians(23.093311)),
    Part.Circle(Vector(1.466643, 4.74641, 0), Vector(0, 0, 1), 0.825),
], False)
sketch10.addConstraint([
    Sketcher.Constraint("Tangent", 0, 2, 1, 1),
    Sketcher.Constraint("Tangent", 1, 2, 2, 1),
    Sketcher.Constraint("Tangent", 2, 2, 0, 1),
    Sketcher.Constraint("Equal", 2, 3),
    Sketcher.Constraint("Symmetric", 0, 3, 3, 3, -2),
    Sketcher.Constraint("Horizontal", 3, 3, 1, 2),
    Sketcher.Constraint("Horizontal", 0, 2, 2, 2),
    Sketcher.Constraint("Diameter", 3, 1.65),
    Sketcher.Constraint("DistanceY", -1, 1, 0, 2, 5.07),
    Sketcher.Constraint("DistanceY", -1, 1, 0, 3, 4.74641),
    Sketcher.Constraint("DistanceX", 0, 3, -1, 1, 1.466643),
])
pad7 = doc.addObject("PartDesign::Pad", "Pad006")
body.addObject(pad7)
pad7.Profile = sketch10
pad7.Length = 1.15

# Sketch on YZ plane
sketch11 = doc.addObject("Sketcher::SketchObject", "Sketch010")
body.addObject(sketch11)
sketch11.AttachmentSupport = (doc.YZ_Plane, [""])
sketch11.MapMode = "FlatFace"
sketch11.addGeometry(Part.Circle(Vector(0, 2.2, 0), Vector(0, 0, 1), 0.15), False)
sketch11.addConstraint([
    Sketcher.Constraint("PointOnObject", 0, 3, -2),
    Sketcher.Constraint("Diameter", 0, 0.3),
    Sketcher.Constraint("DistanceY", -1, 1, 0, 3, 2.2),
])
pocket3 = doc.addObject("PartDesign::Pocket", "Pocket002")
body.addObject(pocket3)
pocket3.Profile = sketch11
pocket3.Type = "UpToFirst"

# Sketch on YZ plane
sketch12 = doc.addObject("Sketcher::SketchObject", "Sketch011")
body.addObject(sketch12)
sketch12.AttachmentSupport = (doc.YZ_Plane, [""])
sketch12.MapMode = "FlatFace"
sketch12.addGeometry(Part.Circle(Vector(0, 2.2, 0), Vector(0, 0, 1), 0.15), False)
sketch12.addConstraint([
    Sketcher.Constraint("PointOnObject", 0, 3, -2),
    Sketcher.Constraint("Diameter", 0, 0.3),
    Sketcher.Constraint("DistanceY", -1, 1, 0, 3, 2.2),
])
pocket4 = doc.addObject("PartDesign::Pocket", "Pocket003")
body.addObject(pocket4)
pocket4.Profile = sketch12
pocket4.Length = 1.25
pocket4.Reversed = True

# Sketch on XY plane
sketch13 = doc.addObject("Sketcher::SketchObject", "Sketch012")
body.addObject(sketch13)
sketch13.AttachmentSupport = (doc.XY_Plane, [""])
sketch13.MapMode = "FlatFace"
sketch13.AttachmentOffset = App.Placement(Vector(0, 0, 7.396772), App.Rotation())
sketch13.addGeometry([
    Part.ArcOfCircle(Part.Circle(Vector(-1.466643, 4.74641, 0), Vector(0, 0, 1), 0.825), math.radians(23.093311), math.radians(156.906689)),
    Part.ArcOfCircle(Part.Circle(Vector(-1.466643, 4.74641, 0), Vector(0, 0, 1), 0.825), math.radians(156.906689), math.radians(360)),
    Part.ArcOfCircle(Part.Circle(Vector(-1.466643, 4.74641, 0), Vector(0, 0, 1), 0.825), math.radians(0), math.radians(23.093311)),
    Part.Circle(Vector(1.466643, 4.74641, 0), Vector(0, 0, 1), 0.825),
], False)
sketch13.addConstraint([
    Sketcher.Constraint("Tangent", 0, 2, 1, 1),
    Sketcher.Constraint("Tangent", 1, 2, 2, 1),
    Sketcher.Constraint("Tangent", 2, 2, 0, 1),
    Sketcher.Constraint("Equal", 2, 3),
    Sketcher.Constraint("Symmetric", 0, 3, 3, 3, -2),
    Sketcher.Constraint("Horizontal", 3, 3, 1, 2),
    Sketcher.Constraint("Horizontal", 0, 2, 2, 2),
    Sketcher.Constraint("Diameter", 3, 1.65),
    Sketcher.Constraint("DistanceY", -1, 1, 0, 2, 5.07),
    Sketcher.Constraint("DistanceY", -1, 1, 0, 3, 4.74641),
    Sketcher.Constraint("DistanceX", 0, 3, -1, 1, 1.466643),
])
pad8 = doc.addObject("PartDesign::Pad", "Pad007")
body.addObject(pad8)
pad8.Profile = sketch13
pad8.Length = 1.15

doc.recompute()
